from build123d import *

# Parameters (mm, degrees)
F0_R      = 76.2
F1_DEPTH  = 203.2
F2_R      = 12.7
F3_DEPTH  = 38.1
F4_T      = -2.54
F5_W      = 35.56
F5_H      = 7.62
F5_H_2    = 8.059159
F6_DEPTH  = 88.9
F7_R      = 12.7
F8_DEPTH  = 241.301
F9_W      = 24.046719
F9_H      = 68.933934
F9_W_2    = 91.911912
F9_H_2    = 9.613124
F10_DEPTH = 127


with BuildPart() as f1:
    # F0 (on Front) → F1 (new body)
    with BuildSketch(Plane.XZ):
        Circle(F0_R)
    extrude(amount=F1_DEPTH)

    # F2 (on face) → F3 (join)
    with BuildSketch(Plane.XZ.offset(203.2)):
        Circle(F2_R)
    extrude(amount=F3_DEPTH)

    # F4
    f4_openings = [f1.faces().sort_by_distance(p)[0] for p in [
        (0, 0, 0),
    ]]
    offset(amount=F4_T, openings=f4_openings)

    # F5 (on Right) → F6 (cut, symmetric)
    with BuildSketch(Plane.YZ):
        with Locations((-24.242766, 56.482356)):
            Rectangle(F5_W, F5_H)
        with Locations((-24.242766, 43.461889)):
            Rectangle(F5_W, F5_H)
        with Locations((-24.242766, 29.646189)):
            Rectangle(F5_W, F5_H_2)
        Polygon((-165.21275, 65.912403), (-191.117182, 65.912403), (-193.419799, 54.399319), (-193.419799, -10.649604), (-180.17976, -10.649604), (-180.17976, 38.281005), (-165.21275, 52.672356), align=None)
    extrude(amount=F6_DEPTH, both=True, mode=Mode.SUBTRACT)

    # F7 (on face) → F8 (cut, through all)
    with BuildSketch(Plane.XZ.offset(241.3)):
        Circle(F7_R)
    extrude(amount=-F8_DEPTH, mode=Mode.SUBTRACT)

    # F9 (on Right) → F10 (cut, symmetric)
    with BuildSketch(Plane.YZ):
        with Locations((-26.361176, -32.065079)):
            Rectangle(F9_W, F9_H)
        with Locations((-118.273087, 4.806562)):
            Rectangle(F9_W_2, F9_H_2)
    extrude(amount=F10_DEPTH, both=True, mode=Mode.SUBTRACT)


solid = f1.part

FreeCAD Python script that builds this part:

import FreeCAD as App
import Part
import Sketcher
Q = App.Units.Quantity


def faces_at(feature, points):
    """Names of the faces that lie closest to the given points."""
    faces = feature.Shape.Faces
    near = lambda p: min(range(len(faces)), key=lambda i: faces[i].distToShape(Part.Vertex(*p))[0])
    return sorted({f"Face{near(p) + 1}" for p in points})


def add_polygon(sketch, points):
    """Adds a closed chain of lines whose ends are joined by coincident constraints."""
    first, n = sketch.GeometryCount, len(points)
    for a, b in zip(points, points[1:] + points[:1]):
        sketch.addGeometry(Part.LineSegment(App.Vector(*a, 0), App.Vector(*b, 0)), False)
    for i in range(n):
        sketch.addConstraint(Sketcher.Constraint("Coincident", first + i, 2, first + (i + 1) % n, 1))

doc = App.newDocument("Part")
body = doc.addObject("PartDesign::Body", "Body")

# Sketch on XZ plane
sketch1 = body.newObject("Sketcher::SketchObject", "Sketch")
sketch1.AttachmentSupport = (doc.getObject("XZ_Plane"), [""])
sketch1.MapMode = "FlatFace"
sketch1.addGeometry(Part.Circle(App.Vector(0, 0, 0), App.Vector(0, 0, 1), 76), False)
sketch1.addConstraint([
    Sketcher.Constraint("Coincident", 0, 3, -1, 1),
    Sketcher.Constraint("Diameter", 0, Q("6 in")),
])
pad1 = body.newObject("PartDesign::Pad", "Pad")
pad1.Profile = sketch1
pad1.Length = Q("8 in")

# Sketch on XZ plane
sketch2 = body.newObject("Sketcher::SketchObject", "Sketch001")
sketch2.AttachmentSupport = (doc.getObject("XZ_Plane"), [""])
sketch2.MapMode = "FlatFace"
sketch2.AttachmentOffset = App.Placement(App.Vector(0, 0, 8 * 25.4), App.Rotation())
sketch2.addGeometry(Part.Circle(App.Vector(0, 0, 0), App.Vector(0, 0, 1), 13), False)
sketch2.addConstraint([
    Sketcher.Constraint("Coincident", 0, 3, -1, 1),
    Sketcher.Constraint("Diameter", 0, Q("1 in")),
])
pad2 = body.newObject("PartDesign::Pad", "Pad001")
pad2.Profile = sketch2
pad2.Length = Q("1.5 in")
doc.recompute()

thickness = body.newObject("PartDesign::Thickness", "Thickness")
thickness.Base = (pad2, faces_at(pad2, [(0, 0, 0)]))
thickness.Value = Q("0.1 in")
thickness.Reversed = True
thickness.Join = "Arc"

# Sketch on YZ plane
sketch3 = body.newObject("Sketcher::SketchObject", "Sketch002")
sketch3.AttachmentSupport = (doc.getObject("YZ_Plane"), [""])
sketch3.MapMode = "FlatFace"
add_polygon(sketch3, [(-42, 60), (-42, 53), (-6, 53), (-6, 60)])  # lines 0-3
add_polygon(sketch3, [(-42, 47), (-42, 40), (-6, 40), (-6, 47)])  # lines 4-7
add_polygon(sketch3, [(-42, 34), (-42, 26), (-6, 26), (-6, 34)])  # lines 8-11
add_polygon(sketch3, [(-165, 66), (-191, 66), (-193, 54), (-193, -11), (-180, -11), (-180, 38), (-165, 53)])  # lines 12-18
sketch3.addConstraint([
    Sketcher.Constraint("Vertical", 0),
    Sketcher.Constraint("Horizontal", 1),
    Sketcher.Constraint("Vertical", 2),
    Sketcher.Constraint("Horizontal", 3),
    Sketcher.Constraint("Vertical", 4),
    Sketcher.Constraint("Horizontal", 5),
    Sketcher.Constraint("Vertical", 6),
    Sketcher.Constraint("Horizontal", 7),
    Sketcher.Constraint("Vertical", 8),
    Sketcher.Constraint("Horizontal", 9),
    Sketcher.Constraint("Vertical", 10),
    Sketcher.Constraint("Horizontal", 11),
    Sketcher.Constraint("Horizontal", 12),
    Sketcher.Constraint("Vertical", 14),
    Sketcher.Constraint("Horizontal", 15),
    Sketcher.Constraint("Vertical", 16),
    Sketcher.Constraint("Vertical", 18),
    Sketcher.Constraint("Horizontal", 1, 2, 17, 2),
    Sketcher.Constraint("Vertical", 3, 2, 4, 2),
    Sketcher.Constraint("Vertical", 2, 2, 5, 2),
    Sketcher.Constraint("Vertical", 7, 2, 8, 2),
    Sketcher.Constraint("Vertical", 6, 2, 9, 2),
    Sketcher.Constraint("Equal", 2, 4),
    Sketcher.Constraint("DistanceX", 1, 1, 1, 2, Q("1.4 in")),
    Sketcher.Constraint("DistanceY", 0, 2, 0, 1, Q("0.3 in")),
    Sketcher.Constraint("DistanceX", 15, 1, 15, 2, 13.240039),
    Sketcher.Constraint("DistanceY", 8, 2, 8, 1, 8.059159),
    Sketcher.Constraint("DistanceY", 16, 1, 16, 2, 48.930609),
    Sketcher.Constraint("DistanceX", 13, 2, -1, 1, 193.419799),
    Sketcher.Constraint("Distance", 13, 11.741088),
    Sketcher.Constraint("DistanceX", 12, 2, 12, 1, 25.904432),
    Sketcher.Constraint("DistanceY", 14, 2, 14, 1, 65.048923),
    Sketcher.Constraint("DistanceY", 18, 1, 18, 2, 13.240047),
    Sketcher.Constraint("DistanceY", -1, 1, 4, 2, 39.651889),
    Sketcher.Constraint("DistanceY", -1, 1, 8, 2, 25.616609),
    Sketcher.Constraint("DistanceY", -1, 1, 13, 2, 54.399319),
    Sketcher.Constraint("DistanceX", 17, 2, -1, 1, 165.21275),
    Sketcher.Constraint("DistanceX", 0, 2, -1, 1, 42.022766),
])
pocket1 = body.newObject("PartDesign::Pocket", "Pocket")
pocket1.Profile = sketch3
pocket1.Length = Q("7 in")
pocket1.Midplane = True

# Sketch on XZ plane
sketch4 = body.newObject("Sketcher::SketchObject", "Sketch003")
sketch4.AttachmentSupport = (doc.getObject("XZ_Plane"), [""])
sketch4.MapMode = "FlatFace"
sketch4.AttachmentOffset = App.Placement(App.Vector(0, 0, 9.5 * 25.4), App.Rotation())
sketch4.addGeometry(Part.Circle(App.Vector(0, 0, 0), App.Vector(0, 0, 1), 13), False)
sketch4.addConstraint([
    Sketcher.Constraint("Coincident", 0, 3, -1, 1),
    Sketcher.Constraint("Diameter", 0, Q("1 in")),
])
pocket2 = body.newObject("PartDesign::Pocket", "Pocket001")
pocket2.Profile = sketch4
pocket2.Type = "ThroughAll"

# Sketch on YZ plane
sketch5 = body.newObject("Sketcher::SketchObject", "Sketch004")
sketch5.AttachmentSupport = (doc.getObject("YZ_Plane"), [""])
sketch5.MapMode = "FlatFace"
add_polygon(sketch5, [(-38, 2), (-38, -67), (-14, -67), (-14, 2)])  # lines 0-3
add_polygon(sketch5, [(-164, 10), (-164, 0), (-72, 0), (-72, 10)])  # lines 4-7
sketch5.addConstraint([
    Sketcher.Constraint("Vertical", 0),
    Sketcher.Constraint("Horizontal", 1),
    Sketcher.Constraint("Vertical", 2),
    Sketcher.Constraint("Horizontal", 3),
    Sketcher.Constraint("Vertical", 4),
    Sketcher.Constraint("Horizontal", 5),
    Sketcher.Constraint("Vertical", 6),
    Sketcher.Constraint("Horizontal", 7),
    Sketcher.Constraint("PointOnObject", 4, 2, -1),
    Sketcher.Constraint("DistanceX", 1, 1, 1, 2, 24.046719),
    Sketcher.Constraint("DistanceX", 5, 1, 5, 2, 91.911912),
    Sketcher.Constraint("DistanceY", 0, 2, 0, 1, 68.933934),
    Sketcher.Constraint("DistanceY", 4, 2, 4, 1, 9.613124),
    Sketcher.Constraint("DistanceY", -1, 1, 2, 2, 2.401888),
    Sketcher.Constraint("DistanceX", 5, 2, -1, 1, 72.317131),
    Sketcher.Constraint("DistanceX", 0, 2, -1, 1, 38.384535),
])
pocket3 = body.newObject("PartDesign::Pocket", "Pocket002")
pocket3.Profile = sketch5
pocket3.Length = Q("10 in")
pocket3.Midplane = True

doc.recompute()
